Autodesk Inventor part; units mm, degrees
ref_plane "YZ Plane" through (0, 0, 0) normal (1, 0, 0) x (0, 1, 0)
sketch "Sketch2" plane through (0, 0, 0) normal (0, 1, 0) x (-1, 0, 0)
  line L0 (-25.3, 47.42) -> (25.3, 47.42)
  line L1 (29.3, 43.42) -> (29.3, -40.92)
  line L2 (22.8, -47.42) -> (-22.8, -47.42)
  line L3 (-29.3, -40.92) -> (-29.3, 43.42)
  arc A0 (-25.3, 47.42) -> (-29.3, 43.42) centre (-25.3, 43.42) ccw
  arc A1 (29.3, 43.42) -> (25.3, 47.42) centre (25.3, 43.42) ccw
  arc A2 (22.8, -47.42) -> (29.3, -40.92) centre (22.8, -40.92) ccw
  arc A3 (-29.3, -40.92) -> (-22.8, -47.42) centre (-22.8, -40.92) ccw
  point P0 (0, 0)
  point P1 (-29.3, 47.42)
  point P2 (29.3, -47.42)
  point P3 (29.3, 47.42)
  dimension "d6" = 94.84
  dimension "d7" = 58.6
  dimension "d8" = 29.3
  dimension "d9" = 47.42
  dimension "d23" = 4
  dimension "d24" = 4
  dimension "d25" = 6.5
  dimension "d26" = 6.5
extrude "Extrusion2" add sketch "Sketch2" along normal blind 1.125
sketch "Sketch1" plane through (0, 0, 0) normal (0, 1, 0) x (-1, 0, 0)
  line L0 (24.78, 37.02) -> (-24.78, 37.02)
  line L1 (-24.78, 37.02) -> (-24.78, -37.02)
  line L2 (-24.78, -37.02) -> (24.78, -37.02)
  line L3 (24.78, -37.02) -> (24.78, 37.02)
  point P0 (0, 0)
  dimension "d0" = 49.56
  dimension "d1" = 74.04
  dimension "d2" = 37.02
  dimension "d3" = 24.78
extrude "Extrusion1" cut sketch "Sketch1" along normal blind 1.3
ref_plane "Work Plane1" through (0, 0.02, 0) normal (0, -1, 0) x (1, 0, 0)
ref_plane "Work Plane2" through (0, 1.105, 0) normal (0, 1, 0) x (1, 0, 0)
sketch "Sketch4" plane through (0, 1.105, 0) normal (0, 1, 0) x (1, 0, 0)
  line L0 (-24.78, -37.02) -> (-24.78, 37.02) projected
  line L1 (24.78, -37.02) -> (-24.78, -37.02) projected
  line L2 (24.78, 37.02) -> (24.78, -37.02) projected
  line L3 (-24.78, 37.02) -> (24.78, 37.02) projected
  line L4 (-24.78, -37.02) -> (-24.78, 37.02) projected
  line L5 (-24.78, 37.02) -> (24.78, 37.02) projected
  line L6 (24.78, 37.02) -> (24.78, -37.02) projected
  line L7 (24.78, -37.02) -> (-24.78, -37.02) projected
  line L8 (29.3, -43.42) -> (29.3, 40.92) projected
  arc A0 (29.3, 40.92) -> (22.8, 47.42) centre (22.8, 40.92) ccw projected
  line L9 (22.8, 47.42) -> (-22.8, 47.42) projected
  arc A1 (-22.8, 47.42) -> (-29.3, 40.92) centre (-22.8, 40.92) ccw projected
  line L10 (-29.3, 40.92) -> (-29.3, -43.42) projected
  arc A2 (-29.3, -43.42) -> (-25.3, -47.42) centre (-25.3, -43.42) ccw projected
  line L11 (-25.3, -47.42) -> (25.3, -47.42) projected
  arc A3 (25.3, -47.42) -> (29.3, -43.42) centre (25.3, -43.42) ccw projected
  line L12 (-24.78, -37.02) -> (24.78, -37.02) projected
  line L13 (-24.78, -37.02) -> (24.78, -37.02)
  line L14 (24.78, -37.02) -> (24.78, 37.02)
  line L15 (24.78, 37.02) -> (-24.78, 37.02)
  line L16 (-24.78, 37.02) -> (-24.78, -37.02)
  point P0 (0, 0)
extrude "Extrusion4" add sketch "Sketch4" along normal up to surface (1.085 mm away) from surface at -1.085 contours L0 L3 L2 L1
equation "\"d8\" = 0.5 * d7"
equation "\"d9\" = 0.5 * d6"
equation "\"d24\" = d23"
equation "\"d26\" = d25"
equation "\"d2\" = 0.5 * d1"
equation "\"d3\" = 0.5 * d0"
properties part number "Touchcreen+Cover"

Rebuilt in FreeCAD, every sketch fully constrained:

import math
import FreeCAD as App
import Part
import Sketcher

V = App.Vector
Q = App.Units.Quantity


def add_polygon(sketch, points):
    """Adds a closed chain of lines whose ends are joined by coincident constraints."""
    first, n = sketch.GeometryCount, len(points)
    for a, b in zip(points, points[1:] + points[:1]):
        sketch.addGeometry(Part.LineSegment(App.Vector(*a, 0), App.Vector(*b, 0)), False)
    for i in range(n):
        sketch.addConstraint(Sketcher.Constraint("Coincident", first + i, 2, first + (i + 1) % n, 1))

doc = App.newDocument("Part")
body = doc.addObject("PartDesign::Body", "Body")

# Sketch on XZ plane
sketch1 = body.newObject("Sketcher::SketchObject", "Sketch")
sketch1.AttachmentSupport = (doc.getObject("XZ_Plane"), [""])
sketch1.MapMode = "FlatFace"
sketch1.addGeometry([
    Part.LineSegment(V(-25.3, 47.4, 0), V(25.3, 47.4, 0)),  # 0
    Part.ArcOfCircle(Part.Circle(V(25.3, 43.4, 0), V(0, 0, 1), 4), math.radians(0), math.radians(90)),  # 1
    Part.LineSegment(V(29.3, 43.4, 0), V(29.3, -40.9, 0)),  # 2
    Part.ArcOfCircle(Part.Circle(V(22.8, -40.9, 0), V(0, 0, 1), 6.5), math.radians(-90), math.radians(0)),  # 3
    Part.LineSegment(V(22.8, -47.4, 0), V(-22.8, -47.4, 0)),  # 4
    Part.ArcOfCircle(Part.Circle(V(-22.8, -40.9, 0), V(0, 0, 1), 6.5), math.radians(180), math.radians(270)),  # 5
    Part.LineSegment(V(-29.3, -40.9, 0), V(-29.3, 43.4, 0)),  # 6
    Part.ArcOfCircle(Part.Circle(V(-25.3, 43.4, 0), V(0, 0, 1), 4), math.radians(90), math.radians(180)),  # 7
], False)
sketch1.addConstraint([
    Sketcher.Constraint("Tangent", 0, 2, 1, 2),
    Sketcher.Constraint("Tangent", 1, 1, 2, 1),
    Sketcher.Constraint("Tangent", 2, 2, 3, 2),
    Sketcher.Constraint("Tangent", 3, 1, 4, 1),
    Sketcher.Constraint("Tangent", 4, 2, 5, 2),
    Sketcher.Constraint("Tangent", 5, 1, 6, 1),
    Sketcher.Constraint("Tangent", 6, 2, 7, 2),
    Sketcher.Constraint("Tangent", 7, 1, 0, 1),
    Sketcher.Constraint("Horizontal", 0),
    Sketcher.Constraint("Vertical", 2),
    Sketcher.Constraint("Horizontal", 4),
    Sketcher.Constraint("Vertical", 6),
    Sketcher.Constraint("Equal", 3, 5),
    Sketcher.Constraint("Equal", 1, 7),
    Sketcher.Constraint("Radius", 1, Q("4 mm")),
    Sketcher.Constraint("Radius", 3, Q("6.5 mm")),
    Sketcher.Constraint("DistanceX", -1, 1, 1, 1, Q("29.3 mm")),
    Sketcher.Constraint("DistanceX", 5, 1, -1, 1, Q("29.3 mm")),
    Sketcher.Constraint("DistanceY", -1, 1, 0, 2, Q("47.42 mm")),
    Sketcher.Constraint("DistanceY", 3, 1, -1, 1, Q("47.42 mm")),
])
pad1 = body.newObject("PartDesign::Pad", "Pad")
pad1.Profile = sketch1
pad1.Length = 1.125
pad1.Reversed = True

# Sketch on XZ plane
sketch2 = body.newObject("Sketcher::SketchObject", "Sketch001")
sketch2.AttachmentSupport = (doc.getObject("XZ_Plane"), [""])
sketch2.MapMode = "FlatFace"
add_polygon(sketch2, [(-25, -37), (-25, 37), (25, 37), (25, -37)])  # lines 0-3
sketch2.addConstraint([
    Sketcher.Constraint("Vertical", 0),
    Sketcher.Constraint("Horizontal", 1),
    Sketcher.Constraint("Vertical", 2),
    Sketcher.Constraint("Horizontal", 3),
    Sketcher.Constraint("Symmetric", 0, 2, 2, 2, -1, 1),
    Sketcher.Constraint("DistanceX", 1, 1, 1, 2, Q("49.56 mm")),
    Sketcher.Constraint("DistanceY", 0, 1, 0, 2, Q("74.04 mm")),
])
pocket1 = body.newObject("PartDesign::Pocket", "Pocket")
pocket1.Profile = sketch2
pocket1.Length = 1.3

# Sketch on XZ plane
sketch3 = body.newObject("Sketcher::SketchObject", "Sketch002")
sketch3.AttachmentSupport = (doc.getObject("XZ_Plane"), [""])
sketch3.MapMode = "FlatFace"
sketch3.AttachmentOffset = App.Placement(V(0, 0, -0.02), App.Rotation())
add_polygon(sketch3, [(-25, -37), (-25, 37), (25, 37), (25, -37)])  # lines 0-3
sketch3.addConstraint([
    Sketcher.Constraint("Vertical", 0),
    Sketcher.Constraint("Horizontal", 1),
    Sketcher.Constraint("Vertical", 2),
    Sketcher.Constraint("Horizontal", 3),
    Sketcher.Constraint("Symmetric", 0, 2, 2, 2, -1, 1),
    Sketcher.Constraint("DistanceX", 1, 1, 1, 2, Q("49.56 mm")),
    Sketcher.Constraint("DistanceY", 0, 1, 0, 2, Q("74.04 mm")),
])
pad2 = body.newObject("PartDesign::Pad", "Pad001")
pad2.Profile = sketch3
pad2.Length = 1.085
pad2.Reversed = True

doc.recompute()
